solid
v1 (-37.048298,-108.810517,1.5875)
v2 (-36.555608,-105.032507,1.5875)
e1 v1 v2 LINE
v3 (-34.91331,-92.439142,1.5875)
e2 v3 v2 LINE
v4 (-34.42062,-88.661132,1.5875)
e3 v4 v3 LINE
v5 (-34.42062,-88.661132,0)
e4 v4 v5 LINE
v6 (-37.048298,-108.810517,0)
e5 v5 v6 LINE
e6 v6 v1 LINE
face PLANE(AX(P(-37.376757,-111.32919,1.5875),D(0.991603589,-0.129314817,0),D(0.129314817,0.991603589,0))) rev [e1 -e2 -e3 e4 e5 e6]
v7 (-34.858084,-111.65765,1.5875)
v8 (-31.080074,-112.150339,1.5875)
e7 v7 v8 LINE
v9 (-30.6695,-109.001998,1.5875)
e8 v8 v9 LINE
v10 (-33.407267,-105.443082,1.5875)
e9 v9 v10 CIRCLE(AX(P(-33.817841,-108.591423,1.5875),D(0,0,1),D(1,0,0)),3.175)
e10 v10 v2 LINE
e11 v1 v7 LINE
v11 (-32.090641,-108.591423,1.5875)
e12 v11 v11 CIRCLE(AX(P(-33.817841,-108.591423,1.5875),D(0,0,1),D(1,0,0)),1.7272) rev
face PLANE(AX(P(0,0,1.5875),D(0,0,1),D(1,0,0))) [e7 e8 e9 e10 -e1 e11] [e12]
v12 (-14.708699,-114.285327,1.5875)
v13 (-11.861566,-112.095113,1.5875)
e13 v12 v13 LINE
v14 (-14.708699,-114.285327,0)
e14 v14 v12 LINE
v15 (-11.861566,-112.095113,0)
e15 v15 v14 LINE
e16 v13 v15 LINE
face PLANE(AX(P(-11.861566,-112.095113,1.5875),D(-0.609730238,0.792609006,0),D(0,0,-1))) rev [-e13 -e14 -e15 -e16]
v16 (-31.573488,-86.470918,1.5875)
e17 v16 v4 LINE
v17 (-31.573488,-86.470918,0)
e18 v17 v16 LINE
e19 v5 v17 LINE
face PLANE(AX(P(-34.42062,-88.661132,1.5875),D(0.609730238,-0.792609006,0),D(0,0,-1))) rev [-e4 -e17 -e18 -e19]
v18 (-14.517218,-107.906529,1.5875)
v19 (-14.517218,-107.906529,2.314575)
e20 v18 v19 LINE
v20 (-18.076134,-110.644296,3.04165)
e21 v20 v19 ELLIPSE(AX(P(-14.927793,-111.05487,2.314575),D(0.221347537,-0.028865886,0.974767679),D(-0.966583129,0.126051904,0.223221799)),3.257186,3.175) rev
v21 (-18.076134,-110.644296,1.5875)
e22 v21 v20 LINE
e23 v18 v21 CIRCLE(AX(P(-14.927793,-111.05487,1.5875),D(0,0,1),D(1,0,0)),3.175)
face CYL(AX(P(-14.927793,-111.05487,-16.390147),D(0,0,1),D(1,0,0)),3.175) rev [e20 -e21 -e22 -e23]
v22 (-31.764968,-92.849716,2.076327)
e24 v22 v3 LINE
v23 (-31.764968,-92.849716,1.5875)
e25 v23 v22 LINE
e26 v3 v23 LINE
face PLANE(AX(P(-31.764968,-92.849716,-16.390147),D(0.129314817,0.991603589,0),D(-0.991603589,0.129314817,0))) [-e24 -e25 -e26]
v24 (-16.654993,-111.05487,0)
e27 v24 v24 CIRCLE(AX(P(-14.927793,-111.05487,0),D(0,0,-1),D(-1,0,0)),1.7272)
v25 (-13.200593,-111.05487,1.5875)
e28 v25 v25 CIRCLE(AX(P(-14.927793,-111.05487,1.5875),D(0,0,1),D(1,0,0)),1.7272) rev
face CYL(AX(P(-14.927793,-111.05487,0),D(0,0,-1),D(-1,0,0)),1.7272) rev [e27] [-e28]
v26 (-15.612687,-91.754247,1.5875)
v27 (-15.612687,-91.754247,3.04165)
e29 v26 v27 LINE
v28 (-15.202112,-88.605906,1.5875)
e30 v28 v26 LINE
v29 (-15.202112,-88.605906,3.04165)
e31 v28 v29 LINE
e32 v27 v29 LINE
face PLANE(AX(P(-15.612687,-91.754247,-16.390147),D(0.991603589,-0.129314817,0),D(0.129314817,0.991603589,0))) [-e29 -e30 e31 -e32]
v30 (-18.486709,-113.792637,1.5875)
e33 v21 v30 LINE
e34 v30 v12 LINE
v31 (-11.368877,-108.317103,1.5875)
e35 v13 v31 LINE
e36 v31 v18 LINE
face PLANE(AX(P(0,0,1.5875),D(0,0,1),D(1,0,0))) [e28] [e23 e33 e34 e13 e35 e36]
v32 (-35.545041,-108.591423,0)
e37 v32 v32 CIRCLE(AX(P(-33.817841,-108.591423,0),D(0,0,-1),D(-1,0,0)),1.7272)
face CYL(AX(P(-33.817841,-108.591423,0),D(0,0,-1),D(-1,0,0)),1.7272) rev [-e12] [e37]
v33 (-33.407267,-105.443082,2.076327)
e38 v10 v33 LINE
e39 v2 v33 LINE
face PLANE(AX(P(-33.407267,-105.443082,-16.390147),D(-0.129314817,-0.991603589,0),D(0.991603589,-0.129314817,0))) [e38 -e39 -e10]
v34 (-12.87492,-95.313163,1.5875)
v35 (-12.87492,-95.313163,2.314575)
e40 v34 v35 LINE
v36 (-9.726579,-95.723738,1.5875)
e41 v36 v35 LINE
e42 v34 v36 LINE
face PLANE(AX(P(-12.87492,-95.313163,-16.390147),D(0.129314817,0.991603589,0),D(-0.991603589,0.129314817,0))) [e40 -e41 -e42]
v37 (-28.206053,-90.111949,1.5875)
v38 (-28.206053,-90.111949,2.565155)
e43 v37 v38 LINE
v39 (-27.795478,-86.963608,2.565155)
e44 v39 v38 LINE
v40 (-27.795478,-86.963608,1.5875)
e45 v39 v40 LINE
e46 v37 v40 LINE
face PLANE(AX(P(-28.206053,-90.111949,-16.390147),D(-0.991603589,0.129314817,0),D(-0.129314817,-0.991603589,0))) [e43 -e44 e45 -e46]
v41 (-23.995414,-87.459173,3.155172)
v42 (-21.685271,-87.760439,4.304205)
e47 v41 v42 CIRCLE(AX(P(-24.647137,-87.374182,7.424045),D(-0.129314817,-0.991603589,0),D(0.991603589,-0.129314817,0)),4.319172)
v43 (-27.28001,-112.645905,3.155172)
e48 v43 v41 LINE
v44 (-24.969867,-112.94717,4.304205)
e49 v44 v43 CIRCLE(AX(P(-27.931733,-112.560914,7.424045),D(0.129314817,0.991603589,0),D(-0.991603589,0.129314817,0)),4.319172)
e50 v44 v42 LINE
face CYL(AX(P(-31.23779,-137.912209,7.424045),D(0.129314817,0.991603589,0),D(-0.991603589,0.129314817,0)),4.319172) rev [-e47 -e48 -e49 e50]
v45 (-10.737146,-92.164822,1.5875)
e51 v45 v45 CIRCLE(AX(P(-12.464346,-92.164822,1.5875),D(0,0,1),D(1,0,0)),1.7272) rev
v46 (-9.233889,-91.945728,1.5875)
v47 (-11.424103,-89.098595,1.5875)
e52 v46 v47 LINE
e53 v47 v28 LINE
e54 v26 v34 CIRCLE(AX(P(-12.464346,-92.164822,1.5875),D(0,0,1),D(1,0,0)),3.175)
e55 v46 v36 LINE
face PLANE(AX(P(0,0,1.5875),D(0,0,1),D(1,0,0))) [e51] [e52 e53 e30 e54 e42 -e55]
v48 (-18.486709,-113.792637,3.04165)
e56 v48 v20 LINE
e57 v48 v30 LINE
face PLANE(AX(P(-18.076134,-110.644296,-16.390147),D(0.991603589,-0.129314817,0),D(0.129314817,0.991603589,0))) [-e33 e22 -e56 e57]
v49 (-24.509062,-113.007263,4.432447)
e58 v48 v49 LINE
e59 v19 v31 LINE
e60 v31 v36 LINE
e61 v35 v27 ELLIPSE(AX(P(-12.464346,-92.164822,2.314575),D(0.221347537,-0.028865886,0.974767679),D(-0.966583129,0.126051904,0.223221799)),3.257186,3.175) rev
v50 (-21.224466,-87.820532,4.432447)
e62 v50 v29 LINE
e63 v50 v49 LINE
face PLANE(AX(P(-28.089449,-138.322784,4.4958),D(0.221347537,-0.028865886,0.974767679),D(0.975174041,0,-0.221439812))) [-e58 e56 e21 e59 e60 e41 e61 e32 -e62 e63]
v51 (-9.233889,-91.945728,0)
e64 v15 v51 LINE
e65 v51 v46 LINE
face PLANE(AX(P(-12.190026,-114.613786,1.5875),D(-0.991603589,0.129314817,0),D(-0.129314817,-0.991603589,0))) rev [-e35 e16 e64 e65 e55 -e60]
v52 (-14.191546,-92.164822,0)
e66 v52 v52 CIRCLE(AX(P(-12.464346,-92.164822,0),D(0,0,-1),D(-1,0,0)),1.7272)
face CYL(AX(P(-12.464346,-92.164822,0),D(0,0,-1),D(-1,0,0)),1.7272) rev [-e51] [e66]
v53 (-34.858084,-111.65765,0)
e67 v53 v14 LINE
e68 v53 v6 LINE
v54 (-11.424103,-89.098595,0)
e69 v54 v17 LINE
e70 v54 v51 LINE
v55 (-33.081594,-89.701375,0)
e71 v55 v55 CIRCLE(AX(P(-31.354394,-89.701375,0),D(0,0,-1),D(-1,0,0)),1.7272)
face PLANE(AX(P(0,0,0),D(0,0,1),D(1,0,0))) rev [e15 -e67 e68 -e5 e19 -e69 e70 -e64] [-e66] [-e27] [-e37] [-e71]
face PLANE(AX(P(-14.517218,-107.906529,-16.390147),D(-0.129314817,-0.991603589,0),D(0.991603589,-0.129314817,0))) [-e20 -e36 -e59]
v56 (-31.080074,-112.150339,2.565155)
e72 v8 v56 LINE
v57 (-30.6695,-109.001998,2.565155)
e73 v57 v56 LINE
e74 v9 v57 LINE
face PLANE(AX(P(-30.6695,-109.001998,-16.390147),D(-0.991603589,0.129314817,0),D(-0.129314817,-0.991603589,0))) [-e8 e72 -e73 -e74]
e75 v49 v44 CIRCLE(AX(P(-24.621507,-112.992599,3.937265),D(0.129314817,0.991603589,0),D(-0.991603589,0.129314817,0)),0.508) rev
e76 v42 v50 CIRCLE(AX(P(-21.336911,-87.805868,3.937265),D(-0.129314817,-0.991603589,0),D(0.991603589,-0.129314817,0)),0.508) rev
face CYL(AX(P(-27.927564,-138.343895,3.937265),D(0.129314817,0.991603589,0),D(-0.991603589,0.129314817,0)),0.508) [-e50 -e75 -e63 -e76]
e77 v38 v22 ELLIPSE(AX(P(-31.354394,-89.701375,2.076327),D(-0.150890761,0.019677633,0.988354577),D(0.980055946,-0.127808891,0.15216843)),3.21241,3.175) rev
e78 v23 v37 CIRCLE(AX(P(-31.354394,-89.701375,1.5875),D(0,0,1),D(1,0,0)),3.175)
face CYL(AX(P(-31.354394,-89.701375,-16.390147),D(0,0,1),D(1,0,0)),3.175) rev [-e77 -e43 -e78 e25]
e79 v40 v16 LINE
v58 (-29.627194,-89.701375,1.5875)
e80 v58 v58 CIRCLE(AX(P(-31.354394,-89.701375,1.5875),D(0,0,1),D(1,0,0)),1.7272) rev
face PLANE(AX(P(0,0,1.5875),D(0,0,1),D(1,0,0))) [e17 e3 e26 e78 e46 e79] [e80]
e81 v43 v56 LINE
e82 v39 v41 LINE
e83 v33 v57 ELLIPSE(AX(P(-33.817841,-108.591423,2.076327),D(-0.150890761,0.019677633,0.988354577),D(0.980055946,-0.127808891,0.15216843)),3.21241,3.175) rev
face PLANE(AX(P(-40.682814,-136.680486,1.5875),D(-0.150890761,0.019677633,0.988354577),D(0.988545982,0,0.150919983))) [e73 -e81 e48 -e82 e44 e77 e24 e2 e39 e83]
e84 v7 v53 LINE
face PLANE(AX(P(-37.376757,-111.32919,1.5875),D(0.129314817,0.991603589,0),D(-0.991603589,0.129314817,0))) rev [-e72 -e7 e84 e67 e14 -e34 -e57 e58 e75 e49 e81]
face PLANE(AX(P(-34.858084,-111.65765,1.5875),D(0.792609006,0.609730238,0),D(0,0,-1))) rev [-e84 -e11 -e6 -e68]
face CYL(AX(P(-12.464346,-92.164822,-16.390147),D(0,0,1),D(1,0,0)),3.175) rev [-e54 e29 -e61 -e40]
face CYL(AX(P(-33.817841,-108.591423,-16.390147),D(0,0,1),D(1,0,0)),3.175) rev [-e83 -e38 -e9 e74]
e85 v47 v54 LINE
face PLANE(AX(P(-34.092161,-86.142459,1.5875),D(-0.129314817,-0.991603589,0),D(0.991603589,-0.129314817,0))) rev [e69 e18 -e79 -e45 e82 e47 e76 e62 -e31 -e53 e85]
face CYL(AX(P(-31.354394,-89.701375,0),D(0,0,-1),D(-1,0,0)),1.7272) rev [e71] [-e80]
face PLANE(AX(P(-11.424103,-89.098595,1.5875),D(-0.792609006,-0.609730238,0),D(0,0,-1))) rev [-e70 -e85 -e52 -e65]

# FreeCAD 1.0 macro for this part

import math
import FreeCAD as App
import Part
import Sketcher

V = App.Vector
Q = App.Units.Quantity


def edges_at(feature, points):
    """Names of the edges that pass closest to the given points."""
    edges = feature.Shape.Edges
    near = lambda p: min(range(len(edges)), key=lambda i: edges[i].distToShape(Part.Vertex(*p))[0])
    return sorted({f"Edge{near(p) + 1}" for p in points})

doc = App.newDocument("Part")
body = doc.addObject("PartDesign::Body", "Body")

sketch1 = body.newObject("Sketcher::SketchObject", "Sketch")
sketch1.AttachmentSupport = (doc.getObject("XY_Plane"), [""])
sketch1.MapMode = "FlatFace"
sketch1.addGeometry([
    Part.LineSegment(V(-34, -86, 0), V(-37, -111, 0)),
    Part.LineSegment(V(-37, -111, 0), V(-12, -115, 0)),
    Part.LineSegment(V(-12, -115, 0), V(-9, -89, 0)),
    Part.LineSegment(V(-9, -89, 0), V(-34, -86, 0)),
], False)
sketch1.addConstraint([
    Sketcher.Constraint("Coincident", 0, 2, 1, 1),
    Sketcher.Constraint("Coincident", 1, 2, 2, 1),
    Sketcher.Constraint("Coincident", 2, 2, 3, 1),
    Sketcher.Constraint("Coincident", 3, 2, 0, 1),
    Sketcher.Constraint("Perpendicular", 0, 1),
    Sketcher.Constraint("Perpendicular", 1, 2),
    Sketcher.Constraint("Perpendicular", 2, 3),
    Sketcher.Constraint("Equal", 0, 1),
    Sketcher.Constraint("Distance", 0, Q("1 in")),
    Sketcher.Constraint("Angle", 0, Q("-97.43 deg")),
    Sketcher.Constraint("DistanceY", 0, 2, -1, 1, 111.32919),
    Sketcher.Constraint("DistanceX", 2, 2, -1, 1, 8.90543),
])
pad1 = body.newObject("PartDesign::Pad", "Pad")
pad1.Profile = sketch1
pad1.Length = Q("0.0625 in")

sketch2 = body.newObject("Sketcher::SketchObject", "Sketch001")
sketch2.Placement = App.Placement(V(-11.616065, -89.073562, 0), App.Rotation(V(0.991603589, -0.129314817, 0), V(0, 0, -1), V(0.129314817, 0.991603589, 0), "ZXY"))
sketch2.addGeometry([
    Part.LineSegment(V(-22.7, -1.6, 0), V(-12.5, -3.2, 0)),
    Part.ArcOfCircle(Part.Circle(V(-13.1, -7.4, 0), V(0, 0, 1), 4.3), math.radians(43), math.radians(81)),
    Part.LineSegment(V(-10, -4.5, 0), V(2.7, -1.6, 0)),
    Part.LineSegment(V(2.7, -1.6, 0), V(-22.7, -1.6, 0)),
], False)
sketch2.addConstraint([
    Sketcher.Constraint("Tangent", 0, 2, 1, 2),
    Sketcher.Constraint("Coincident", 1, 1, 2, 1),
    Sketcher.Constraint("Coincident", 2, 2, 3, 1),
    Sketcher.Constraint("Coincident", 3, 2, 0, 1),
    Sketcher.Constraint("Horizontal", 3),
    Sketcher.Constraint("DistanceX", 3, 2, 3, 1, Q("1 in")),
    Sketcher.Constraint("DistanceX", 1, 1, 2, 2, Q("0.5 in")),
    Sketcher.Constraint("DistanceY", 1, 1, -1, 1, Q("0.177 in")),
    Sketcher.Constraint("DistanceY", 2, 2, -1, 1, Q("0.0625 in")),
    Sketcher.Constraint("Radius", 1, 4.319172),
    Sketcher.Constraint("DistanceX", 1, 3, 1, 1, Q("0.125 in")),
    Sketcher.Constraint("DistanceX", 0, 2, -1, 1, 12.484171),
])
pad2 = body.newObject("PartDesign::Pad", "Pad001")
pad2.Profile = sketch2
pad2.Length = Q("1 in")
pad2.Reversed = True
doc.recompute()

fillet = body.newObject("PartDesign::Fillet", "Fillet")
fillet.Base = (pad2, edges_at(pad2, [(-23.141, -100.378, 4.496)]))
fillet.Radius = Q("0.02 in")

sketch3 = body.newObject("Sketcher::SketchObject", "Sketch002")
sketch3.AttachmentSupport = (doc.getObject("XY_Plane"), [""])
sketch3.MapMode = "FlatFace"
sketch3.addGeometry([
    Part.Circle(V(-12.5, -92.2, 0), V(0, 0, 1), 1.7),
    Part.Circle(V(-31.4, -89.7, 0), V(0, 0, 1), 1.7),
    Part.Circle(V(-33.8, -108.6, 0), V(0, 0, 1), 1.7),
    Part.Circle(V(-14.9, -111.1, 0), V(0, 0, 1), 1.7),
], False)
sketch3.addConstraint([
    Sketcher.Constraint("Equal", 0, 1),
    Sketcher.Constraint("Equal", 1, 2),
    Sketcher.Constraint("Equal", 2, 3),
    Sketcher.Constraint("Diameter", 0, Q("0.136 in")),
    Sketcher.Constraint("DistanceY", 2, 3, 0, 3, 16.426601),
    Sketcher.Constraint("DistanceX", 1, 3, 3, 3, 16.426601),
    Sketcher.Constraint("DistanceY", 0, 3, -1, 1, 92.164822),
    Sketcher.Constraint("DistanceX", 2, 3, -1, 1, 33.817841),
    Sketcher.Constraint("DistanceY", 3, 3, -1, 1, 111.05487),
    Sketcher.Constraint("DistanceX", 1, 3, 0, 3, 18.890048),
    Sketcher.Constraint("DistanceY", 2, 3, 1, 3, 18.890048),
    Sketcher.Constraint("DistanceX", 2, 3, 3, 3, 18.890048),
])
doc.recompute()
hole = body.newObject("PartDesign::Hole", "Hole")
hole.Profile = sketch3
hole.ThreadType = "None"
hole.Diameter = Q("0.136 in")
hole.DepthType = "ThroughAll"
hole.Reversed = True

sketch4 = body.newObject("Sketcher::SketchObject", "Sketch003")
sketch4.AttachmentSupport = (doc.getObject("XY_Plane"), [""])
sketch4.MapMode = "FlatFace"
sketch4.AttachmentOffset = App.Placement(V(0, 0, 0.25 * 25.4), App.Rotation())
sketch4.addGeometry([
    Part.LineSegment(V(-40, -104.6, 0), V(-33.4, -105.4, 0)),
    Part.ArcOfCircle(Part.Circle(V(-33.8, -108.6, 0), V(0, 0, 1), 3.2), math.radians(-7), math.radians(83)),
    Part.LineSegment(V(-30.7, -109, 0), V(-31.7, -117, 0)),
    Part.LineSegment(V(-31.7, -117, 0), V(-40, -116.1, 0)),
    Part.LineSegment(V(-40, -116.1, 0), V(-40, -104.6, 0)),
    Part.LineSegment(V(-35.4, -80.9, 0), V(-27.2, -82.1, 0)),
    Part.LineSegment(V(-27.2, -82.1, 0), V(-28.2, -90.1, 0)),
    Part.ArcOfCircle(Part.Circle(V(-31.4, -89.7, 0), V(0, 0, 1), 3.2), math.radians(-97), math.radians(-7)),
    Part.LineSegment(V(-31.8, -92.8, 0), V(-38.3, -92, 0)),
    Part.LineSegment(V(-38.3, -92, 0), V(-35.4, -80.9, 0)),
    Part.LineSegment(V(-6.3, -96.2, 0), V(-12.9, -95.3, 0)),
    Part.ArcOfCircle(Part.Circle(V(-12.5, -92.2, 0), V(0, 0, 1), 3.2), math.radians(173), math.radians(263)),
    Part.LineSegment(V(-15.6, -91.8, 0), V(-14.6, -83.8, 0)),
    Part.LineSegment(V(-14.6, -83.8, 0), V(-6.3, -84.7, 0)),
    Part.LineSegment(V(-6.3, -84.7, 0), V(-6.3, -96.2, 0)),
    Part.LineSegment(V(-10.9, -119.9, 0), V(-19.1, -118.6, 0)),
    Part.LineSegment(V(-19.1, -118.6, 0), V(-18.1, -110.6, 0)),
    Part.ArcOfCircle(Part.Circle(V(-14.9, -111.1, 0), V(0, 0, 1), 3.2), math.radians(83), math.radians(173)),
    Part.LineSegment(V(-14.5, -107.9, 0), V(-8, -108.8, 0)),
    Part.LineSegment(V(-8, -108.8, 0), V(-10.9, -119.9, 0)),
], False)
sketch4.addConstraint([
    Sketcher.Constraint("Tangent", 0, 2, 1, 2),
    Sketcher.Constraint("Tangent", 1, 1, 2, 1),
    Sketcher.Constraint("Coincident", 2, 2, 3, 1),
    Sketcher.Constraint("Coincident", 3, 2, 4, 1),
    Sketcher.Constraint("Coincident", 4, 2, 0, 1),
    Sketcher.Constraint("Coincident", 5, 2, 6, 1),
    Sketcher.Constraint("Tangent", 6, 2, 7, 2),
    Sketcher.Constraint("Tangent", 7, 1, 8, 1),
    Sketcher.Constraint("Coincident", 8, 2, 9, 1),
    Sketcher.Constraint("Coincident", 9, 2, 5, 1),
    Sketcher.Constraint("Tangent", 10, 2, 11, 2),
    Sketcher.Constraint("Tangent", 11, 1, 12, 1),
    Sketcher.Constraint("Coincident", 12, 2, 13, 1),
    Sketcher.Constraint("Coincident", 13, 2, 14, 1),
    Sketcher.Constraint("Coincident", 14, 2, 10, 1),
    Sketcher.Constraint("Coincident", 15, 2, 16, 1),
    Sketcher.Constraint("Tangent", 16, 2, 17, 2),
    Sketcher.Constraint("Tangent", 17, 1, 18, 1),
    Sketcher.Constraint("Coincident", 18, 2, 19, 1),
    Sketcher.Constraint("Coincident", 19, 2, 15, 1),
    Sketcher.Constraint("Vertical", 4),
    Sketcher.Constraint("Vertical", 14),
    Sketcher.Constraint("Equal", 1, 7),
    Sketcher.Constraint("Equal", 7, 11),
    Sketcher.Constraint("Equal", 11, 17),
    Sketcher.Constraint("Perpendicular", 0, 2),
    Sketcher.Constraint("Parallel", 2, 6),
    Sketcher.Constraint("Perpendicular", 6, 8),
    Sketcher.Constraint("Parallel", 8, 10),
    Sketcher.Constraint("Perpendicular", 10, 12),
    Sketcher.Constraint("Parallel", 3, 13),
    Sketcher.Constraint("Parallel", 5, 15),
    Sketcher.Constraint("Parallel", 12, 16),
    Sketcher.Constraint("Perpendicular", 16, 18),
    Sketcher.Constraint("Parallel", 9, 19),
    Sketcher.Constraint("Equal", 4, 14),
    Sketcher.Constraint("Equal", 3, 5),
    Sketcher.Constraint("Equal", 2, 6),
    Sketcher.Constraint("Equal", 0, 8),
    Sketcher.Constraint("Equal", 8, 10),
    Sketcher.Constraint("Equal", 13, 15),
    Sketcher.Constraint("Equal", 12, 16),
    Sketcher.Constraint("Radius", 1, Q("0.125 in")),
    Sketcher.Constraint("Angle", 0, Q("-7.43 deg")),
    Sketcher.Constraint("Angle", 9, Q("75.14 deg")),
    Sketcher.Constraint("DistanceY", 4, 1, 4, 2, 11.49707),
    Sketcher.Constraint("DistanceX", 1, 1, -1, 1, 30.6695),
    Sketcher.Constraint("DistanceY", 4, 2, -1, 1, 104.586698),
    Sketcher.Constraint("DistanceY", 1, 3, 11, 3, 16.426601),
    Sketcher.Constraint("DistanceX", 7, 3, 17, 3, 16.426601),
    Sketcher.Constraint("DistanceX", 1, 3, 2, 2, 2.105301),
    Sketcher.Constraint("DistanceY", 2, 2, 7, 3, 27.298802),
    Sketcher.Constraint("DistanceY", 3, 2, 17, 3, 5.028898),
    Sketcher.Constraint("DistanceY", 1, 1, 4, 2, 4.415299),
    Sketcher.Constraint("DistanceX", 0, 2, 7, 1, 1.642298),
    Sketcher.Constraint("DistanceX", 17, 1, 10, 2, 1.642298),
])
pocket1 = body.newObject("PartDesign::Pocket", "Pocket")
pocket1.Profile = sketch4
pocket1.Length = Q("0.1875 in")
doc.recompute()

chamfer = body.newObject("PartDesign::Chamfer", "Chamfer")
chamfer.Base = (pocket1, edges_at(pocket1, [
    (-37.377, -111.329, 0.794),
    (-34.092, -86.142, 0.794),
    (-8.905, -89.427, 0.794),
    (-12.19, -114.614, 0.794),
]))
chamfer.Size = Q("0.1 in")

doc.recompute()
